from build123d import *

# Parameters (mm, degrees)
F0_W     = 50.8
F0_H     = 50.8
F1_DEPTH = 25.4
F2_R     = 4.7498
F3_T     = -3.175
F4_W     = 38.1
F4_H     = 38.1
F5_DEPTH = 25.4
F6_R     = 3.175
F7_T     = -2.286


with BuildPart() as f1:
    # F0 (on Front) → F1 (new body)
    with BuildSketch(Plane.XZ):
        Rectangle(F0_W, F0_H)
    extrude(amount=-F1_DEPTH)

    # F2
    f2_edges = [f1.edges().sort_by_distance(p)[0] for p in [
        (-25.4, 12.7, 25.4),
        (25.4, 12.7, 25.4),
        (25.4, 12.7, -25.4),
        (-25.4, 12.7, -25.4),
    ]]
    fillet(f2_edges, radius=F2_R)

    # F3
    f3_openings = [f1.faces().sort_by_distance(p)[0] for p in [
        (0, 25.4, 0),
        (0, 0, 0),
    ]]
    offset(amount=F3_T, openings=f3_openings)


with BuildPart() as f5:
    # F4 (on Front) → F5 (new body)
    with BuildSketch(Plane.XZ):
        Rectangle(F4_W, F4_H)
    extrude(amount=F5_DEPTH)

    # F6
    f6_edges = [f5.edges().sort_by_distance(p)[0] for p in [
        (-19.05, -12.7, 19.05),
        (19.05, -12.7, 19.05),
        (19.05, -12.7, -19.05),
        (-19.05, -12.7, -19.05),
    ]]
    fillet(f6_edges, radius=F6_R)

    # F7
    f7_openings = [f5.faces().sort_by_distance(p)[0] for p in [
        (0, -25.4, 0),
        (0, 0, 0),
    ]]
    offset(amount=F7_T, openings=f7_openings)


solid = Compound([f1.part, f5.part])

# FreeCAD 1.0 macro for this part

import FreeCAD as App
import Part
import Sketcher

V = App.Vector
Q = App.Units.Quantity


def edges_at(feature, points):
    """Names of the edges that pass closest to the given points."""
    edges = feature.Shape.Edges
    near = lambda p: min(range(len(edges)), key=lambda i: edges[i].distToShape(Part.Vertex(*p))[0])
    return sorted({f"Edge{near(p) + 1}" for p in points})


def faces_at(feature, points):
    """Names of the faces that lie closest to the given points."""
    faces = feature.Shape.Faces
    near = lambda p: min(range(len(faces)), key=lambda i: faces[i].distToShape(Part.Vertex(*p))[0])
    return sorted({f"Face{near(p) + 1}" for p in points})

doc = App.newDocument("Part")
body = doc.addObject("PartDesign::Body", "Body")

# Sketch on XZ plane
sketch1 = body.newObject("Sketcher::SketchObject", "Sketch")
sketch1.AttachmentSupport = (doc.getObject("XZ_Plane"), [""])
sketch1.MapMode = "FlatFace"
sketch1.addGeometry(Part.LineSegment(V(-25, 25, 0), V(-25, -25, 0)), False)
sketch1.addGeometry(Part.LineSegment(V(-25, -25, 0), V(25, -25, 0)), False)
sketch1.addGeometry(Part.LineSegment(V(25, -25, 0), V(25, 25, 0)), False)
sketch1.addGeometry(Part.LineSegment(V(25, 25, 0), V(-25, 25, 0)), False)
sketch1.addConstraint(Sketcher.Constraint("Coincident", 0, 2, 1, 1))
sketch1.addConstraint(Sketcher.Constraint("Coincident", 1, 2, 2, 1))
sketch1.addConstraint(Sketcher.Constraint("Coincident", 2, 2, 3, 1))
sketch1.addConstraint(Sketcher.Constraint("Coincident", 3, 2, 0, 1))
sketch1.addConstraint(Sketcher.Constraint("Vertical", 0))
sketch1.addConstraint(Sketcher.Constraint("Horizontal", 1))
sketch1.addConstraint(Sketcher.Constraint("Vertical", 2))
sketch1.addConstraint(Sketcher.Constraint("Horizontal", 3))
sketch1.addConstraint(Sketcher.Constraint("Symmetric", 0, 2, 2, 2, -1, 1))
sketch1.addConstraint(Sketcher.Constraint("Equal", 3, 0))
sketch1.addConstraint(Sketcher.Constraint("DistanceX", 1, 1, 1, 2, Q("2 in")))
pad1 = body.newObject("PartDesign::Pad", "Pad")
pad1.Profile = sketch1
pad1.Length = Q("1 in")
pad1.Reversed = True
doc.recompute()

fillet = body.newObject("PartDesign::Fillet", "Fillet")
fillet.Base = (pad1, edges_at(pad1, [
    (-25.4, 12.7, 25.4),
    (25.4, 12.7, 25.4),
    (25.4, 12.7, -25.4),
    (-25.4, 12.7, -25.4),
]))
fillet.Radius = Q("0.187 in")
doc.recompute()

thickness = body.newObject("PartDesign::Thickness", "Thickness")
thickness.Base = (fillet, faces_at(fillet, [(0, 25.4, 0), (0, 0, 0)]))
thickness.Value = Q("0.125 in")
thickness.Reversed = True
thickness.Join = "Arc"
body2 = doc.addObject("PartDesign::Body", "Body001")

# Sketch on XZ plane
sketch2 = body2.newObject("Sketcher::SketchObject", "Sketch001")
sketch2.AttachmentSupport = (doc.getObject("XZ_Plane001"), [""])
sketch2.MapMode = "FlatFace"
sketch2.addGeometry(Part.LineSegment(V(-19, 19, 0), V(-19, -19, 0)), False)
sketch2.addGeometry(Part.LineSegment(V(-19, -19, 0), V(19, -19, 0)), False)
sketch2.addGeometry(Part.LineSegment(V(19, -19, 0), V(19, 19, 0)), False)
sketch2.addGeometry(Part.LineSegment(V(19, 19, 0), V(-19, 19, 0)), False)
sketch2.addConstraint(Sketcher.Constraint("Coincident", 0, 2, 1, 1))
sketch2.addConstraint(Sketcher.Constraint("Coincident", 1, 2, 2, 1))
sketch2.addConstraint(Sketcher.Constraint("Coincident", 2, 2, 3, 1))
sketch2.addConstraint(Sketcher.Constraint("Coincident", 3, 2, 0, 1))
sketch2.addConstraint(Sketcher.Constraint("Vertical", 0))
sketch2.addConstraint(Sketcher.Constraint("Horizontal", 1))
sketch2.addConstraint(Sketcher.Constraint("Vertical", 2))
sketch2.addConstraint(Sketcher.Constraint("Horizontal", 3))
sketch2.addConstraint(Sketcher.Constraint("Symmetric", 0, 2, 2, 2, -1, 1))
sketch2.addConstraint(Sketcher.Constraint("Equal", 3, 0))
sketch2.addConstraint(Sketcher.Constraint("DistanceX", 1, 1, 1, 2, Q("1.5 in")))
pad2 = body2.newObject("PartDesign::Pad", "Pad001")
pad2.Profile = sketch2
pad2.Length = Q("1 in")
doc.recompute()

fillet2 = body2.newObject("PartDesign::Fillet", "Fillet001")
fillet2.Base = (pad2, edges_at(pad2, [
    (-19.05, -12.7, 19.05),
    (19.05, -12.7, 19.05),
    (19.05, -12.7, -19.05),
    (-19.05, -12.7, -19.05),
]))
fillet2.Radius = Q("0.125 in")
doc.recompute()

thickness2 = body2.newObject("PartDesign::Thickness", "Thickness001")
thickness2.Base = (fillet2, faces_at(fillet2, [(0, -25.4, 0), (0, 0, 0)]))
thickness2.Value = Q("0.09 in")
thickness2.Reversed = True
thickness2.Join = "Arc"

doc.recompute()
